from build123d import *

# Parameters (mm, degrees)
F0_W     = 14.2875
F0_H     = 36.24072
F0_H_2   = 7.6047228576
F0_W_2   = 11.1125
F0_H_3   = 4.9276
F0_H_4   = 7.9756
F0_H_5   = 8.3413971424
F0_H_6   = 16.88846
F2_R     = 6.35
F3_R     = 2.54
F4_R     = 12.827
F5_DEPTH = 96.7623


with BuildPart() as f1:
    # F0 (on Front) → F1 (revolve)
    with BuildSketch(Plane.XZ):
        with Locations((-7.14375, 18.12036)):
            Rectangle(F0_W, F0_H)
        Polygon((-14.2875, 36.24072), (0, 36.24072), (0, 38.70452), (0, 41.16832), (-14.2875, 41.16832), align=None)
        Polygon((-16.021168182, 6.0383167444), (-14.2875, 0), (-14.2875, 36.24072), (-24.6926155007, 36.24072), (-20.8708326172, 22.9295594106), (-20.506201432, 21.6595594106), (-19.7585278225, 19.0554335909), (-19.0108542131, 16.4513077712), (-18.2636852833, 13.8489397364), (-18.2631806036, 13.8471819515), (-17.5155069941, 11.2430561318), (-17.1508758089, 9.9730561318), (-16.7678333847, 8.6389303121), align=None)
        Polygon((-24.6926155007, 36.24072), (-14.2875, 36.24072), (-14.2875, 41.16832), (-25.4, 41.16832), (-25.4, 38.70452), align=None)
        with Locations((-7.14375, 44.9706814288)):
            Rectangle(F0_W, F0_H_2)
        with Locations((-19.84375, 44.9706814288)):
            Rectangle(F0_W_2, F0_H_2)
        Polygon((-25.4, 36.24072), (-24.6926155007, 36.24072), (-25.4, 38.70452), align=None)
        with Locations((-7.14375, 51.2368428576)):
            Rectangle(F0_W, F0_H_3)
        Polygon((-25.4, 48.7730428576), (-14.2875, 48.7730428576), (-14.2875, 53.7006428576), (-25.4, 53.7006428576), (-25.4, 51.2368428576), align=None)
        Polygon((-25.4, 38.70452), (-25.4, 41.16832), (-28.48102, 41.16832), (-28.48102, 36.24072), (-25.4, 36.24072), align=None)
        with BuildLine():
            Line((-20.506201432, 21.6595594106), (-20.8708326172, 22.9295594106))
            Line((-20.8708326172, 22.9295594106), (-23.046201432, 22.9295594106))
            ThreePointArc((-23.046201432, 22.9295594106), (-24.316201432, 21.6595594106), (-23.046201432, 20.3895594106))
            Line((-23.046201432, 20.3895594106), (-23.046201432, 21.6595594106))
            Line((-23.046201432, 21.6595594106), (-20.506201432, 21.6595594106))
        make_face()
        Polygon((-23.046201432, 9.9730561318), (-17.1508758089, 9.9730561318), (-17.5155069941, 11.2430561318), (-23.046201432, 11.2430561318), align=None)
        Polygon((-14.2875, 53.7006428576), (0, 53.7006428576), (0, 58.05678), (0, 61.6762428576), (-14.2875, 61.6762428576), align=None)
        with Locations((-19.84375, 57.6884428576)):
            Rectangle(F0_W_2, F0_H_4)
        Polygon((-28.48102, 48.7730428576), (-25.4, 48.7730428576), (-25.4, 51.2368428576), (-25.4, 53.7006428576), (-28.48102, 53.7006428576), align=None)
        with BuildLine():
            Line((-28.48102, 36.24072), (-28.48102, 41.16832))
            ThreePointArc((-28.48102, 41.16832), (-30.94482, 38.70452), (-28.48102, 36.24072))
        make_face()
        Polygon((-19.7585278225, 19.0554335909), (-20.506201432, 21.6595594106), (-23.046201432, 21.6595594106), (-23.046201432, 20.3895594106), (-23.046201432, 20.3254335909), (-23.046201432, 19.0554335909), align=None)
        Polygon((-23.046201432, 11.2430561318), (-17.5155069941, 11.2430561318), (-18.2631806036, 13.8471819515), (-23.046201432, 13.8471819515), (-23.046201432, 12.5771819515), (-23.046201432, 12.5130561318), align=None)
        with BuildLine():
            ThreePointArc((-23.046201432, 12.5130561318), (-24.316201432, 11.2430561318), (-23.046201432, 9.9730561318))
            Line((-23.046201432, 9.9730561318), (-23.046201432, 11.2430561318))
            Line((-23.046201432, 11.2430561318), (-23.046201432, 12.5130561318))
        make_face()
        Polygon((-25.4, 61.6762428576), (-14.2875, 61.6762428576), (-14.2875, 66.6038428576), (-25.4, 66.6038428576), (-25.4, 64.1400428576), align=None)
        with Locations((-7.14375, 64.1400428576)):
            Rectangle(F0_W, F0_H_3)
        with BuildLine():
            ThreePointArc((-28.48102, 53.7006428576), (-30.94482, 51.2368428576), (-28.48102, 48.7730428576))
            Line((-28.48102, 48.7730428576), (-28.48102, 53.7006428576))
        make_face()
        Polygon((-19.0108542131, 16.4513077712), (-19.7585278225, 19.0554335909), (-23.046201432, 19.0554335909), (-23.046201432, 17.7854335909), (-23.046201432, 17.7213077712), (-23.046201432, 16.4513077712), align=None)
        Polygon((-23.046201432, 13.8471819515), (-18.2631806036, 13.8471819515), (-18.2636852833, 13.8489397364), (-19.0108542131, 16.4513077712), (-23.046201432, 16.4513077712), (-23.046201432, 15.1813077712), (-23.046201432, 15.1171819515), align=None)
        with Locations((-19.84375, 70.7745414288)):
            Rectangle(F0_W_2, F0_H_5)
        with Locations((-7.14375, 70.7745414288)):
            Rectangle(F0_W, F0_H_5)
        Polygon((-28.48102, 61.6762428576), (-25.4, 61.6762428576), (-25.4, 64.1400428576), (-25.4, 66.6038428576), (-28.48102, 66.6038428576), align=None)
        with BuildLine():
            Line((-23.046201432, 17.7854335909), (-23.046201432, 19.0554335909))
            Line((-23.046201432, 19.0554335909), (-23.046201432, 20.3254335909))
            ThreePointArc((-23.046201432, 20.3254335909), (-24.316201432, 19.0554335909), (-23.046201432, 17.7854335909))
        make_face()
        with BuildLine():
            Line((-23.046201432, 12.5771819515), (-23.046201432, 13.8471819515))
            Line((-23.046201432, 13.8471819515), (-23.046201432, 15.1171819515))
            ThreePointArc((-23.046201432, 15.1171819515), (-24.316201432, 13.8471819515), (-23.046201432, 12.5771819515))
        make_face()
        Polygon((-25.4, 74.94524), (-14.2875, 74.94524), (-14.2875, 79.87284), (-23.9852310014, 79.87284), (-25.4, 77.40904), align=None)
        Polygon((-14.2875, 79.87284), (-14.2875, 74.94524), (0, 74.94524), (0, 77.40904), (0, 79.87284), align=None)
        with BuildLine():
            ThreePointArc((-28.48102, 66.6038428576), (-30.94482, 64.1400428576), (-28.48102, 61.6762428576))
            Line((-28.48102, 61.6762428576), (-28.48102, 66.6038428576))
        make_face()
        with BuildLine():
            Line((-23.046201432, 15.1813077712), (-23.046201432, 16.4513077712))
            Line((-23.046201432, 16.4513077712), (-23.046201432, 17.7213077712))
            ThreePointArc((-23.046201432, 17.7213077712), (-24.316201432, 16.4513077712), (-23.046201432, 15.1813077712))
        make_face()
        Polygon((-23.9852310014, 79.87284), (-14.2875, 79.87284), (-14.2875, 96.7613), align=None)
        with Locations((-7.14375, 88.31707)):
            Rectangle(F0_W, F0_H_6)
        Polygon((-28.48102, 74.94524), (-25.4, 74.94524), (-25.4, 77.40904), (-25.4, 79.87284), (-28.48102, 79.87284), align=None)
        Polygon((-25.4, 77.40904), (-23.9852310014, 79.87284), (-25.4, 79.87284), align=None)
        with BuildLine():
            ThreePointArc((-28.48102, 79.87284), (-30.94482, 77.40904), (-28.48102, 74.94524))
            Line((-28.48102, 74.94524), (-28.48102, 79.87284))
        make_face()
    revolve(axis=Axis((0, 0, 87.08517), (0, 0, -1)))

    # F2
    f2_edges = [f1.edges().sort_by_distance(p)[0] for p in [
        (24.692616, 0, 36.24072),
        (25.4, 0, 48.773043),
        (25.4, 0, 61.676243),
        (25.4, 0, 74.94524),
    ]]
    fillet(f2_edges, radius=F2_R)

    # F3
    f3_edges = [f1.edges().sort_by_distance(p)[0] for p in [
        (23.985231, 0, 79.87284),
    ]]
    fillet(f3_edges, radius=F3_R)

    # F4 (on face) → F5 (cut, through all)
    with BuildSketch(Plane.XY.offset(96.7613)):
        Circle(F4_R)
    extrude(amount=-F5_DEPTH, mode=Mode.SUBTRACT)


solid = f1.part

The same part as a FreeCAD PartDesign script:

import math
import FreeCAD as App
import Part
import Sketcher
Q = App.Units.Quantity


def edges_at(feature, points):
    """Names of the edges that pass closest to the given points."""
    edges = feature.Shape.Edges
    near = lambda p: min(range(len(edges)), key=lambda i: edges[i].distToShape(Part.Vertex(*p))[0])
    return sorted({f"Edge{near(p) + 1}" for p in points})

doc = App.newDocument("Part")
body = doc.addObject("PartDesign::Body", "Body")

# Sketch on XZ plane
sketch1 = doc.addObject("Sketcher::SketchObject", "Sketch")
body.addObject(sketch1)
sketch1.AttachmentSupport = (doc.XZ_Plane, [""])
sketch1.MapMode = "FlatFace"
sketch1.addGeometry([
    Part.LineSegment(App.Vector(-14.2875, 0, 0), App.Vector(0, 0, 0)),  # 0
    Part.LineSegment(App.Vector(0, 0, 0), App.Vector(0, 96.7613, 0)),  # 1
    Part.LineSegment(App.Vector(0, 96.7613, 0), App.Vector(-14.2875, 96.7613, 0)),  # 2
    Part.LineSegment(App.Vector(-14.2875, 96.7613, 0), App.Vector(-23.985231, 79.87284, 0)),  # 3
    Part.LineSegment(App.Vector(-23.985231, 79.87284, 0), App.Vector(-28.48102, 79.87284, 0)),  # 4
    Part.ArcOfCircle(Part.Circle(App.Vector(-28.48102, 77.40904, 0), App.Vector(0, 0, 1), 2.4638), math.radians(90), math.radians(270)),  # 5
    Part.LineSegment(App.Vector(-28.48102, 74.94524, 0), App.Vector(-25.4, 74.94524, 0)),  # 6
    Part.LineSegment(App.Vector(-25.4, 74.94524, 0), App.Vector(-25.4, 66.603843, 0)),  # 7
    Part.LineSegment(App.Vector(-25.4, 66.603843, 0), App.Vector(-28.48102, 66.603843, 0)),  # 8
    Part.ArcOfCircle(Part.Circle(App.Vector(-28.48102, 64.140043, 0), App.Vector(0, 0, 1), 2.4638), math.radians(90), math.radians(270)),  # 9
    Part.LineSegment(App.Vector(-28.48102, 61.676243, 0), App.Vector(-25.4, 61.676243, 0)),  # 10
    Part.LineSegment(App.Vector(-25.4, 61.676243, 0), App.Vector(-25.4, 53.700643, 0)),  # 11
    Part.LineSegment(App.Vector(-25.4, 53.700643, 0), App.Vector(-28.48102, 53.700643, 0)),  # 12
    Part.ArcOfCircle(Part.Circle(App.Vector(-28.48102, 51.236843, 0), App.Vector(0, 0, 1), 2.4638), math.radians(90), math.radians(270)),  # 13
    Part.LineSegment(App.Vector(-28.48102, 48.773043, 0), App.Vector(-25.4, 48.773043, 0)),  # 14
    Part.LineSegment(App.Vector(-25.4, 48.773043, 0), App.Vector(-25.4, 41.16832, 0)),  # 15
    Part.LineSegment(App.Vector(-25.4, 41.16832, 0), App.Vector(-28.48102, 41.16832, 0)),  # 16
    Part.ArcOfCircle(Part.Circle(App.Vector(-28.48102, 38.70452, 0), App.Vector(0, 0, 1), 2.4638), math.radians(90), math.radians(270)),  # 17
    Part.LineSegment(App.Vector(-28.48102, 36.24072, 0), App.Vector(-24.692616, 36.24072, 0)),  # 18
    Part.LineSegment(App.Vector(-24.692616, 36.24072, 0), App.Vector(-20.870833, 22.929559, 0)),  # 19
    Part.LineSegment(App.Vector(-20.870833, 22.929559, 0), App.Vector(-23.046201, 22.929559, 0)),  # 20
    Part.ArcOfCircle(Part.Circle(App.Vector(-23.046201, 21.659559, 0), App.Vector(0, 0, 1), 1.27), math.radians(90), math.radians(270)),  # 21
    Part.LineSegment(App.Vector(-23.046201, 20.389559, 0), App.Vector(-23.046201, 20.325434, 0)),  # 22
    Part.ArcOfCircle(Part.Circle(App.Vector(-23.046201, 19.055434, 0), App.Vector(0, 0, 1), 1.27), math.radians(90), math.radians(270)),  # 23
    Part.LineSegment(App.Vector(-23.046201, 17.785434, 0), App.Vector(-23.046201, 17.721308, 0)),  # 24
    Part.ArcOfCircle(Part.Circle(App.Vector(-23.046201, 16.451308, 0), App.Vector(0, 0, 1), 1.27), math.radians(90), math.radians(270)),  # 25
    Part.LineSegment(App.Vector(-23.046201, 15.181308, 0), App.Vector(-23.046201, 15.117182, 0)),  # 26
    Part.ArcOfCircle(Part.Circle(App.Vector(-23.046201, 13.847182, 0), App.Vector(0, 0, 1), 1.27), math.radians(90), math.radians(270)),  # 27
    Part.LineSegment(App.Vector(-23.046201, 12.577182, 0), App.Vector(-23.046201, 12.513056, 0)),  # 28
    Part.ArcOfCircle(Part.Circle(App.Vector(-23.046201, 11.243056, 0), App.Vector(0, 0, 1), 1.27), math.radians(90), math.radians(270)),  # 29
    Part.LineSegment(App.Vector(-23.046201, 9.973056, 0), App.Vector(-17.150876, 9.973056, 0)),  # 30
    Part.LineSegment(App.Vector(-17.150876, 9.973056, 0), App.Vector(-16.767833, 8.63893, 0)),  # 31
    Part.LineSegment(App.Vector(-16.767833, 8.63893, 0), App.Vector(-16.021168, 6.038317, 0)),  # 32
    Part.LineSegment(App.Vector(-16.021168, 6.038317, 0), App.Vector(-14.2875, 0, 0)),  # 33
], False)
sketch1.addConstraint([
    Sketcher.Constraint("Coincident", 0, 2, 1, 1),
    Sketcher.Constraint("Coincident", 1, 2, 2, 1),
    Sketcher.Constraint("Coincident", 2, 2, 3, 1),
    Sketcher.Constraint("Coincident", 3, 2, 4, 1),
    Sketcher.Constraint("Tangent", 4, 2, 5, 1),
    Sketcher.Constraint("Tangent", 5, 2, 6, 1),
    Sketcher.Constraint("Coincident", 6, 2, 7, 1),
    Sketcher.Constraint("Coincident", 7, 2, 8, 1),
    Sketcher.Constraint("Tangent", 8, 2, 9, 1),
    Sketcher.Constraint("Tangent", 9, 2, 10, 1),
    Sketcher.Constraint("Coincident", 10, 2, 11, 1),
    Sketcher.Constraint("Coincident", 11, 2, 12, 1),
    Sketcher.Constraint("Tangent", 12, 2, 13, 1),
    Sketcher.Constraint("Tangent", 13, 2, 14, 1),
    Sketcher.Constraint("Coincident", 14, 2, 15, 1),
    Sketcher.Constraint("Coincident", 15, 2, 16, 1),
    Sketcher.Constraint("Tangent", 16, 2, 17, 1),
    Sketcher.Constraint("Tangent", 17, 2, 18, 1),
    Sketcher.Constraint("Coincident", 18, 2, 19, 1),
    Sketcher.Constraint("Coincident", 19, 2, 20, 1),
    Sketcher.Constraint("Tangent", 20, 2, 21, 1),
    Sketcher.Constraint("Coincident", 21, 2, 22, 1),
    Sketcher.Constraint("Coincident", 22, 2, 23, 1),
    Sketcher.Constraint("Coincident", 23, 2, 24, 1),
    Sketcher.Constraint("Coincident", 24, 2, 25, 1),
    Sketcher.Constraint("Coincident", 25, 2, 26, 1),
    Sketcher.Constraint("Coincident", 26, 2, 27, 1),
    Sketcher.Constraint("Coincident", 27, 2, 28, 1),
    Sketcher.Constraint("Coincident", 28, 2, 29, 1),
    Sketcher.Constraint("Tangent", 29, 2, 30, 1),
    Sketcher.Constraint("Coincident", 30, 2, 31, 1),
    Sketcher.Constraint("Coincident", 31, 2, 32, 1),
    Sketcher.Constraint("Coincident", 32, 2, 33, 1),
    Sketcher.Constraint("Coincident", 33, 2, 0, 1),
    Sketcher.Constraint("Horizontal", 0),
    Sketcher.Constraint("Vertical", 1),
    Sketcher.Constraint("Horizontal", 2),
    Sketcher.Constraint("Horizontal", 4),
    Sketcher.Constraint("Horizontal", 6),
    Sketcher.Constraint("Vertical", 7),
    Sketcher.Constraint("Horizontal", 8),
    Sketcher.Constraint("Horizontal", 10),
    Sketcher.Constraint("Vertical", 11),
    Sketcher.Constraint("Horizontal", 12),
    Sketcher.Constraint("Horizontal", 14),
    Sketcher.Constraint("Vertical", 15),
    Sketcher.Constraint("Horizontal", 16),
    Sketcher.Constraint("Horizontal", 18),
    Sketcher.Constraint("Horizontal", 20),
    Sketcher.Constraint("Vertical", 22),
    Sketcher.Constraint("Vertical", 24),
    Sketcher.Constraint("Vertical", 26),
    Sketcher.Constraint("Vertical", 28),
    Sketcher.Constraint("Horizontal", 30),
    Sketcher.Constraint("Coincident", 0, 2, -1, 1),
    Sketcher.Constraint("Equal", 5, 9),
    Sketcher.Constraint("Equal", 9, 13),
    Sketcher.Constraint("Equal", 13, 17),
    Sketcher.Constraint("Equal", 21, 23),
    Sketcher.Constraint("Equal", 23, 25),
    Sketcher.Constraint("Equal", 25, 27),
    Sketcher.Constraint("Equal", 27, 29),
    Sketcher.Constraint("Parallel", 19, 31),
    Sketcher.Constraint("Parallel", 31, 32),
    Sketcher.Constraint("Parallel", 32, 33),
    Sketcher.Constraint("Vertical", 5, 3, 9, 3),
    Sketcher.Constraint("Vertical", 9, 3, 13, 3),
    Sketcher.Constraint("Vertical", 13, 3, 17, 3),
    Sketcher.Constraint("Vertical", 21, 3, 23, 3),
    Sketcher.Constraint("Vertical", 23, 3, 25, 3),
    Sketcher.Constraint("Vertical", 25, 3, 27, 3),
    Sketcher.Constraint("Vertical", 27, 3, 29, 3),
    Sketcher.Constraint("Vertical", 7, 2, 10, 2),
    Sketcher.Constraint("Vertical", 11, 2, 14, 2),
    Sketcher.Constraint("Vertical", 20, 2, 21, 2),
    Sketcher.Constraint("Vertical", 22, 2, 23, 2),
    Sketcher.Constraint("Vertical", 24, 2, 25, 2),
    Sketcher.Constraint("Vertical", 26, 2, 27, 2),
    Sketcher.Constraint("Vertical", 2, 2, 33, 2),
    Sketcher.Constraint("Equal", 22, 24),
    Sketcher.Constraint("Equal", 24, 26),
    Sketcher.Constraint("Equal", 26, 28),
    Sketcher.Constraint("Radius", 21, Q("0.05 in")),
    Sketcher.Constraint("DistanceX", 6, 2, -1, 1, Q("1 in")),
    Sketcher.Constraint("Radius", 5, Q("0.097 in")),
    Sketcher.Constraint("DistanceX", 0, 1, 0, 2, Q("0.5625 in")),
    Sketcher.Constraint("DistanceY", 11, 2, 11, 1, Q("0.314 in")),
    Sketcher.Constraint("DistanceX", 6, 1, 6, 2, Q("0.1213 in")),
    Sketcher.Constraint("DistanceY", 1, 1, 1, 2, Q("3.8095 in")),
    Sketcher.Constraint("DistanceY", -1, 1, 5, 3, Q("3.0476 in")),
    Sketcher.Constraint("DistanceY", -1, 1, 17, 3, Q("1.5238 in")),
    Sketcher.Constraint("DistanceX", 4, 2, 4, 1, Q("4.495789 mm")),
    Sketcher.Constraint("DistanceX", 20, 2, 20, 1, Q("2.175369 mm")),
    Sketcher.Constraint("DistanceX", 21, 3, -1, 1, Q("23.046201 mm")),
    Sketcher.Constraint("Distance", 32, Q("2.705679 mm")),
    Sketcher.Constraint("DistanceX", 18, 1, 18, 2, Q("3.788404 mm")),
    Sketcher.Constraint("DistanceX", 30, 1, 30, 2, Q("5.895326 mm")),
    Sketcher.Constraint("DistanceY", 7, 2, 7, 1, Q("8.341397 mm")),
    Sketcher.Constraint("DistanceY", 22, 2, 22, 1, Q("0.064126 mm")),
    Sketcher.Constraint("DistanceY", -1, 1, 31, 2, Q("8.63893 mm")),
])
revolution = doc.addObject("PartDesign::Revolution", "Revolution")
body.addObject(revolution)
revolution.Profile = sketch1
revolution.ReferenceAxis = (sketch1, ["V_Axis"])
revolution.Angle = 360
doc.recompute()

fillet = doc.addObject("PartDesign::Fillet", "Fillet")
body.addObject(fillet)
fillet.Base = (revolution, edges_at(revolution, [
    (24.693, 0, 36.241),
    (25.4, 0, 48.773),
    (25.4, 0, 61.676),
    (25.4, 0, 74.945),
]))
fillet.Radius = Q("0.25 in")
doc.recompute()

fillet2 = doc.addObject("PartDesign::Fillet", "Fillet001")
body.addObject(fillet2)
fillet2.Base = (fillet, edges_at(fillet, [(23.985, 0, 79.873)]))
fillet2.Radius = Q("0.1 in")

# Sketch on XY plane
sketch2 = doc.addObject("Sketcher::SketchObject", "Sketch001")
body.addObject(sketch2)
sketch2.AttachmentSupport = (doc.XY_Plane, [""])
sketch2.MapMode = "FlatFace"
sketch2.AttachmentOffset = App.Placement(App.Vector(0, 0, 3.8095 * 25.4), App.Rotation())
sketch2.addGeometry(Part.Circle(App.Vector(0, 0, 0), App.Vector(0, 0, 1), 12.827), False)
sketch2.addConstraint([
    Sketcher.Constraint("Coincident", 0, 3, -1, 1),
    Sketcher.Constraint("Diameter", 0, Q("1.01 in")),
])
pocket1 = doc.addObject("PartDesign::Pocket", "Pocket")
body.addObject(pocket1)
pocket1.Profile = sketch2
pocket1.Type = "ThroughAll"

doc.recompute()
